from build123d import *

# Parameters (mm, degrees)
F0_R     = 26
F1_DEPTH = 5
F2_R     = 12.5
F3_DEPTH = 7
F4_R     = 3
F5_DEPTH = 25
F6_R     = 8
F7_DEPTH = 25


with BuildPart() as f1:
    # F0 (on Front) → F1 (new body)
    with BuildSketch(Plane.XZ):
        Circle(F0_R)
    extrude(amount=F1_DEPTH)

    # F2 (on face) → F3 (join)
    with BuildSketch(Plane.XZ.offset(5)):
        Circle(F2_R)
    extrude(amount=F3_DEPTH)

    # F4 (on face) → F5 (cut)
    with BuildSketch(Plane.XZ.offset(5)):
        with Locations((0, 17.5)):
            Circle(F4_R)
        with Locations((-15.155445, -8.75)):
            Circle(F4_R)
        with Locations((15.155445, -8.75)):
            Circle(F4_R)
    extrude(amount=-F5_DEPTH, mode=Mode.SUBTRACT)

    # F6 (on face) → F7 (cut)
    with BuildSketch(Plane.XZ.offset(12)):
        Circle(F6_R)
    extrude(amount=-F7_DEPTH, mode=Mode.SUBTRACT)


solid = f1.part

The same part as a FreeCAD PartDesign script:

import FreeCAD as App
import Part
import Sketcher

V = App.Vector

doc = App.newDocument("Part")
body = doc.addObject("PartDesign::Body", "Body")

sketch1 = body.newObject("Sketcher::SketchObject", "Sketch")
sketch1.AttachmentSupport = (doc.getObject("XZ_Plane"), [""])
sketch1.MapMode = "FlatFace"
sketch1.addGeometry(Part.Circle(V(0, 0, 0), V(0, 0, 1), 26), False)
sketch1.addConstraint(Sketcher.Constraint("Coincident", 0, 3, -1, 1))
sketch1.addConstraint(Sketcher.Constraint("Diameter", 0, 52.0))
pad1 = body.newObject("PartDesign::Pad", "Pad")
pad1.Profile = sketch1
pad1.Length = 5

sketch2 = body.newObject("Sketcher::SketchObject", "Sketch001")
sketch2.AttachmentSupport = (doc.getObject("XZ_Plane"), [""])
sketch2.MapMode = "FlatFace"
sketch2.AttachmentOffset = App.Placement(V(0, 0, 5), App.Rotation())
sketch2.addGeometry(Part.Circle(V(0, 0, 0), V(0, 0, 1), 12), False)
sketch2.addConstraint(Sketcher.Constraint("Coincident", 0, 3, -1, 1))
sketch2.addConstraint(Sketcher.Constraint("Diameter", 0, 25.0))
pad2 = body.newObject("PartDesign::Pad", "Pad001")
pad2.Profile = sketch2
pad2.Length = 7

sketch3 = body.newObject("Sketcher::SketchObject", "Sketch002")
sketch3.AttachmentSupport = (doc.getObject("XZ_Plane"), [""])
sketch3.MapMode = "FlatFace"
sketch3.AttachmentOffset = App.Placement(V(0, 0, 5), App.Rotation())
sketch3.addGeometry(Part.Circle(V(0, 17.5, 0), V(0, 0, 1), 3), False)
sketch3.addGeometry(Part.Circle(V(-15.2, -8.8, 0), V(0, 0, 1), 3), False)
sketch3.addGeometry(Part.Circle(V(15.2, -8.8, 0), V(0, 0, 1), 3), False)
sketch3.addConstraint(Sketcher.Constraint("Equal", 0, 1))
sketch3.addConstraint(Sketcher.Constraint("Equal", 1, 2))
sketch3.addConstraint(Sketcher.Constraint("Symmetric", 1, 3, 2, 3, -2))
sketch3.addConstraint(Sketcher.Constraint("PointOnObject", 0, 3, -2))
sketch3.addConstraint(Sketcher.Constraint("Diameter", 0, 6.0))
sketch3.addConstraint(Sketcher.Constraint("DistanceY", -1, 1, 0, 3, 17.5))
sketch3.addConstraint(Sketcher.Constraint("DistanceY", 1, 3, -1, 1, 8.75))
sketch3.addConstraint(Sketcher.Constraint("DistanceX", 1, 3, 2, 3, 30.31089))
pocket1 = body.newObject("PartDesign::Pocket", "Pocket")
pocket1.Profile = sketch3
pocket1.Length = 25

sketch4 = body.newObject("Sketcher::SketchObject", "Sketch003")
sketch4.AttachmentSupport = (doc.getObject("XZ_Plane"), [""])
sketch4.MapMode = "FlatFace"
sketch4.AttachmentOffset = App.Placement(V(0, 0, 12), App.Rotation())
sketch4.addGeometry(Part.Circle(V(0, 0, 0), V(0, 0, 1), 8), False)
sketch4.addConstraint(Sketcher.Constraint("Coincident", 0, 3, -1, 1))
sketch4.addConstraint(Sketcher.Constraint("Diameter", 0, 16.0))
pocket2 = body.newObject("PartDesign::Pocket", "Pocket001")
pocket2.Profile = sketch4
pocket2.Length = 25

doc.recompute()
